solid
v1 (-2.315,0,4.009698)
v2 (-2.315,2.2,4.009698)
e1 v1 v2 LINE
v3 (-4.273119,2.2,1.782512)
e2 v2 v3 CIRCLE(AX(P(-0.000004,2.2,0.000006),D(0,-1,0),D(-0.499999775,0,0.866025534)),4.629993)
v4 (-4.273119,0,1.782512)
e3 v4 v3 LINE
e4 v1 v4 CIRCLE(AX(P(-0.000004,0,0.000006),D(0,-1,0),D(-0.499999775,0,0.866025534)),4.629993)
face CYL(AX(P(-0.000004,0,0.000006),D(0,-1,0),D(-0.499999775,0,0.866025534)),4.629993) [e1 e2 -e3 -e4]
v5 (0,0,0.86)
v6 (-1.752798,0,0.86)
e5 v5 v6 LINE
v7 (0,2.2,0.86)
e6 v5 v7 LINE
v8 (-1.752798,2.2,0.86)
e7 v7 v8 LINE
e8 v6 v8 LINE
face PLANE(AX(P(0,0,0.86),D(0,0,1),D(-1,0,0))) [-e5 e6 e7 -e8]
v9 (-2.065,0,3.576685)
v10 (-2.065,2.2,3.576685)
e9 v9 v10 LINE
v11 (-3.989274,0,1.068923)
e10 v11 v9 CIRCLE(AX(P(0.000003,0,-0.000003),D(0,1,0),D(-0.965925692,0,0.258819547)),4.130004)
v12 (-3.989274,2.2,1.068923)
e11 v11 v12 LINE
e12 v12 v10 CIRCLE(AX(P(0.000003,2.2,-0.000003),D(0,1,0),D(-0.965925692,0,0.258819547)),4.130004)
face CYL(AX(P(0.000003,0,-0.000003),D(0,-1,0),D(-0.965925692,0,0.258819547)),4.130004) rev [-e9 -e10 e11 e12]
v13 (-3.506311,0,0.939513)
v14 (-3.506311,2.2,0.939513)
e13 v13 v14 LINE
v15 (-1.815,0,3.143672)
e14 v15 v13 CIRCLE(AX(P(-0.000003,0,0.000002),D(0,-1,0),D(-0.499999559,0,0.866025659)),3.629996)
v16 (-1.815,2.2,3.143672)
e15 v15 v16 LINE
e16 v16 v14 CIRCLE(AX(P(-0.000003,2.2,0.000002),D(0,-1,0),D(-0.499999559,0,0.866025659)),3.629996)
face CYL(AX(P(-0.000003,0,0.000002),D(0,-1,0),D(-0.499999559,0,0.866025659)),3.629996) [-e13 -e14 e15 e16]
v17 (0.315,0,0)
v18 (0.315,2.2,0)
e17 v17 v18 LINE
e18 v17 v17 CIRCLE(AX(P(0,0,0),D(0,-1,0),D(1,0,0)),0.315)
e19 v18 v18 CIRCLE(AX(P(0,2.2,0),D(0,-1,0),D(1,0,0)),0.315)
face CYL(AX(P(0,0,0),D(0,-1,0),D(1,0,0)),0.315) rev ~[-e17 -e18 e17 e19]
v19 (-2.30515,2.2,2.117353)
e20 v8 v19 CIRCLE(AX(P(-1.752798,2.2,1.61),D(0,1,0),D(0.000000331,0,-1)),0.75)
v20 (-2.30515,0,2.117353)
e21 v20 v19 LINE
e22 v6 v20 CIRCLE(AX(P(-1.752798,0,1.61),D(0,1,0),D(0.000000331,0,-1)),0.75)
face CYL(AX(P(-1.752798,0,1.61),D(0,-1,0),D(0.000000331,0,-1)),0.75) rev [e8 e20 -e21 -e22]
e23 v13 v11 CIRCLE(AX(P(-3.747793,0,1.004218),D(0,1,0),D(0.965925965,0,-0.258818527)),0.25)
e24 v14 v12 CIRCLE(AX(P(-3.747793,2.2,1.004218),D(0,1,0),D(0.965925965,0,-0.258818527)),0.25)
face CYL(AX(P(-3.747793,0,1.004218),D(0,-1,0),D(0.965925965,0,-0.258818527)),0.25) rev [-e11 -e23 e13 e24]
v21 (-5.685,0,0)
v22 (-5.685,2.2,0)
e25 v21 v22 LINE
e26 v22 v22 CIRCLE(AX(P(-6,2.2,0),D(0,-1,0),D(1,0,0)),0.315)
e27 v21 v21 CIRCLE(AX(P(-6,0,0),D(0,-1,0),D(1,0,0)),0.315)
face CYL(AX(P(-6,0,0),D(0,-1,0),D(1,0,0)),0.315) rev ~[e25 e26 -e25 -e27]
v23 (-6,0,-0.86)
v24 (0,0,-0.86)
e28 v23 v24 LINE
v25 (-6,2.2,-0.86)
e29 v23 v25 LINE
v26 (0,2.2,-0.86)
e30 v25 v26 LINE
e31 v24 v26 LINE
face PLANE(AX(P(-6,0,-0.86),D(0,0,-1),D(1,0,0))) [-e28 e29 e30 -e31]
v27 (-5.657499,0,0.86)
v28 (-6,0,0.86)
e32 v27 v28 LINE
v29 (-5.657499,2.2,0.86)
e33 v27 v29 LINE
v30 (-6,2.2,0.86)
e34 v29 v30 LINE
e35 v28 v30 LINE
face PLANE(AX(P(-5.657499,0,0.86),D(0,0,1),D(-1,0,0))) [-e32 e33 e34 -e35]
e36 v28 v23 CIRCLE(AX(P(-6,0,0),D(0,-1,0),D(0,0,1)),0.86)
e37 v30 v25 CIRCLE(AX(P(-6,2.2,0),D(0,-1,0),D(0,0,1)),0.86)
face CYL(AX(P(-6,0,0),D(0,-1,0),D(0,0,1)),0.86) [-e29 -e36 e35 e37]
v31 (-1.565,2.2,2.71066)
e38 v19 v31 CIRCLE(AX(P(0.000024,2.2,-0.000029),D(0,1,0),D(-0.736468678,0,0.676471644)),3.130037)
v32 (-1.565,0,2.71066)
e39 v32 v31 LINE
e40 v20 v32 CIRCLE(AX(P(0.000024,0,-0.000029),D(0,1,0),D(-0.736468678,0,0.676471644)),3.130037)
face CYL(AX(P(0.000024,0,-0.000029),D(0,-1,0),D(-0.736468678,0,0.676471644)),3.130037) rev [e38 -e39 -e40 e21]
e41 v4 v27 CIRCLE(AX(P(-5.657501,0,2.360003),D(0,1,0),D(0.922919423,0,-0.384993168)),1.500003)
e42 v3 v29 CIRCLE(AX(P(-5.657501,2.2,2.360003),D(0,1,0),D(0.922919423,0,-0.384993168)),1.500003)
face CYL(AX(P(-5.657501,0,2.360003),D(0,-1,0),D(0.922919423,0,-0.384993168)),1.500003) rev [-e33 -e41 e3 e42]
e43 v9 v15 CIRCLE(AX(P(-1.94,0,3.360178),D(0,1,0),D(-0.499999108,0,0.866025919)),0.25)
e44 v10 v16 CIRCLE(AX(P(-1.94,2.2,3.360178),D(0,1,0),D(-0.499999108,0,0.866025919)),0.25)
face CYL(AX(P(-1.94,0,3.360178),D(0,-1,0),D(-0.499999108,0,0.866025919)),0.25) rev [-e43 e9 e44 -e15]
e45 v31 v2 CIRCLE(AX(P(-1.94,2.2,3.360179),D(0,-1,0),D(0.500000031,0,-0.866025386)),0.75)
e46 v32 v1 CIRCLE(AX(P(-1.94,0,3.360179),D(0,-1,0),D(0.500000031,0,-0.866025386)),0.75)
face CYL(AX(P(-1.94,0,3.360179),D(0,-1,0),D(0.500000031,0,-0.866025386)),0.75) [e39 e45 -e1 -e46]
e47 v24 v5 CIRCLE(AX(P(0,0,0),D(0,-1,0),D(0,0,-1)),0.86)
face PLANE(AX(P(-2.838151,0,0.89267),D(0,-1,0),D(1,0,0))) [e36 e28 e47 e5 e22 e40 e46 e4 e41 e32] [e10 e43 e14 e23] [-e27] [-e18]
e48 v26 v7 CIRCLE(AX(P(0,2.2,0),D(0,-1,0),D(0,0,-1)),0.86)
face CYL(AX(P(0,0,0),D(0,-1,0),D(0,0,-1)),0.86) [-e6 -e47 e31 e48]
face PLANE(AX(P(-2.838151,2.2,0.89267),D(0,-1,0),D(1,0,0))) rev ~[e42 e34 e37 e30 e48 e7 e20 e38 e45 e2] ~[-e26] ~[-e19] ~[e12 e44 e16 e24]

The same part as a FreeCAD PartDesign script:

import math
import FreeCAD as App
import Part
import Sketcher

V = App.Vector
Q = App.Units.Quantity

doc = App.newDocument("Part")
params = doc.addObject("Spreadsheet::Sheet", "Params")
for row, (alias, value) in enumerate([
    ("sketch1_diameter", "0.63 mm"),
    ("sketch1_width", "6 mm"),
    ("sketch1_radius", "0.86 mm"),
    ("sketch1_radius2", "0.75 mm"),
    ("sketch1_radius3", "0.25 mm"),
    ("pad1_length", "2.2 mm"),
], start=1):
    params.set(f"A{row}", alias)
    params.set(f"B{row}", "=" + value)
    params.setAlias(f"B{row}", alias)

body = doc.addObject("PartDesign::Body", "Body")

sketch1 = doc.addObject("Sketcher::SketchObject", "Sketch")
body.addObject(sketch1)
sketch1.AttachmentSupport = (doc.XZ_Plane, [""])
sketch1.MapMode = "FlatFace"
sketch1.addGeometry(Part.ArcOfCircle(Part.Circle(V(0, 0, 0), V(0, 0, 1), 0.86), math.radians(-90), math.radians(90)), False)
sketch1.addGeometry(Part.LineSegment(V(0, 0.86, 0), V(-1.75, 0.86, 0)), False)
sketch1.addGeometry(Part.ArcOfCircle(Part.Circle(V(-1.75, 1.61, 0), V(0, 0, 1), 0.75), math.radians(137), math.radians(270)), False)
sketch1.addGeometry(Part.ArcOfCircle(Part.Circle(V(0, 0, 0), V(0, 0, 1), 3.13), math.radians(120), math.radians(137.43)), False)
sketch1.addGeometry(Part.ArcOfCircle(Part.Circle(V(-1.94, 3.36, 0), V(0, 0, 1), 0.75), math.radians(-60), math.radians(120)), False)
sketch1.addGeometry(Part.ArcOfCircle(Part.Circle(V(0, 0, 0), V(0, 0, 1), 4.63), math.radians(120), math.radians(157)), False)
sketch1.addGeometry(Part.ArcOfCircle(Part.Circle(V(-5.66, 2.36, 0), V(0, 0, 1), 1.5), math.radians(-90), math.radians(-23)), False)
sketch1.addGeometry(Part.LineSegment(V(-5.66, 0.86, 0), V(-6, 0.86, 0)), False)
sketch1.addGeometry(Part.ArcOfCircle(Part.Circle(V(-6, 0, 0), V(0, 0, 1), 0.86), math.radians(90), math.radians(270)), False)
sketch1.addGeometry(Part.LineSegment(V(-6, -0.86, 0), V(0, -0.86, 0)), False)
sketch1.addGeometry(Part.Circle(V(-6, 0, 0), V(0, 0, 1), 0.32), False)
sketch1.addGeometry(Part.Circle(V(0, 0, 0), V(0, 0, 1), 0.32), False)
sketch1.addGeometry(Part.ArcOfCircle(Part.Circle(V(0, 0, 0), V(0, 0, 1), 4.13), math.radians(120), math.radians(165)), False)
sketch1.addGeometry(Part.ArcOfCircle(Part.Circle(V(-1.94, 3.36, 0), V(0, 0, 1), 0.25), math.radians(-60), math.radians(120)), False)
sketch1.addGeometry(Part.ArcOfCircle(Part.Circle(V(0, 0, 0), V(0, 0, 1), 3.63), math.radians(120), math.radians(165)), False)
sketch1.addGeometry(Part.ArcOfCircle(Part.Circle(V(-3.75, 1, 0), V(0, 0, 1), 0.25), math.radians(165), math.radians(345)), False)
sketch1.addConstraint(Sketcher.Constraint("Tangent", 0, 2, 1, 1))
sketch1.addConstraint(Sketcher.Constraint("Tangent", 1, 2, 2, 2))
sketch1.addConstraint(Sketcher.Constraint("Tangent", 2, 1, 3, 2))
sketch1.addConstraint(Sketcher.Constraint("Coincident", 3, 1, 4, 1))
sketch1.addConstraint(Sketcher.Constraint("Tangent", 4, 2, 5, 1))
sketch1.addConstraint(Sketcher.Constraint("Coincident", 5, 2, 6, 2))
sketch1.addConstraint(Sketcher.Constraint("Tangent", 6, 1, 7, 1))
sketch1.addConstraint(Sketcher.Constraint("Tangent", 7, 2, 8, 1))
sketch1.addConstraint(Sketcher.Constraint("Tangent", 8, 2, 9, 1))
sketch1.addConstraint(Sketcher.Constraint("Tangent", 9, 2, 0, 1))
sketch1.addConstraint(Sketcher.Constraint("Tangent", 12, 1, 13, 2))
sketch1.addConstraint(Sketcher.Constraint("Tangent", 13, 1, 14, 1))
sketch1.addConstraint(Sketcher.Constraint("Tangent", 14, 2, 15, 2))
sketch1.addConstraint(Sketcher.Constraint("Tangent", 15, 1, 12, 2))
sketch1.addConstraint(Sketcher.Constraint("Horizontal", 1))
sketch1.addConstraint(Sketcher.Constraint("Horizontal", 7))
sketch1.addConstraint(Sketcher.Constraint("Horizontal", 9))
sketch1.addConstraint(Sketcher.Constraint("Coincident", 0, 3, -1, 1))
sketch1.addConstraint(Sketcher.Constraint("Coincident", 5, 3, -1, 1))
sketch1.addConstraint(Sketcher.Constraint("Coincident", 11, 3, -1, 1))
sketch1.addConstraint(Sketcher.Constraint("Coincident", 12, 3, -1, 1))
sketch1.addConstraint(Sketcher.Constraint("Coincident", 14, 3, -1, 1))
sketch1.addConstraint(Sketcher.Constraint("Coincident", 10, 3, 8, 3))
sketch1.addConstraint(Sketcher.Constraint("Coincident", 13, 3, 4, 3))
sketch1.addConstraint(Sketcher.Constraint("Equal", 2, 4))
sketch1.addConstraint(Sketcher.Constraint("Equal", 0, 8))
sketch1.addConstraint(Sketcher.Constraint("Equal", 10, 11))
sketch1.addConstraint(Sketcher.Constraint("Diameter", 10, Q("0.63 mm")))
sketch1.addConstraint(Sketcher.Constraint("DistanceX", 9, 1, 9, 2, Q("6 mm")))
sketch1.addConstraint(Sketcher.Constraint("Radius", 0, Q("0.86 mm")))
sketch1.addConstraint(Sketcher.Constraint("Radius", 2, Q("0.75 mm")))
sketch1.addConstraint(Sketcher.Constraint("Radius", 13, Q("0.25 mm")))
sketch1.addConstraint(Sketcher.Constraint("DistanceX", 12, 1, 3, 1, Q("0.5 mm")))
sketch1.addConstraint(Sketcher.Constraint("DistanceX", 4, 2, 13, 1, Q("0.5 mm")))
sketch1.addConstraint(Sketcher.Constraint("DistanceX", 4, 3, -1, 1, Q("1.94 mm")))
sketch1.addConstraint(Sketcher.Constraint("DistanceX", 1, 2, 1, 1, Q("1.752798 mm")))
sketch1.addConstraint(Sketcher.Constraint("DistanceX", 7, 2, 7, 1, Q("0.342501 mm")))
sketch1.addConstraint(Sketcher.Constraint("Radius", 3, Q("3.130037 mm")))
sketch1.addConstraint(Sketcher.Constraint("DistanceY", 14, 2, 5, 2, Q("0.842999 mm")))
sketch1.addConstraint(Sketcher.Constraint("DistanceX", 5, 2, -1, 1, Q("4.273119 mm")))
sketch1.setExpression("Constraints[27]", "Params.sketch1_diameter")
sketch1.setExpression("Constraints[28]", "Params.sketch1_width")
sketch1.setExpression("Constraints[29]", "Params.sketch1_radius")
sketch1.setExpression("Constraints[30]", "Params.sketch1_radius2")
sketch1.setExpression("Constraints[31]", "Params.sketch1_radius3")
pad1 = doc.addObject("PartDesign::Pad", "Pad")
body.addObject(pad1)
pad1.Profile = sketch1
pad1.setExpression("Length", "Params.pad1_length")
pad1.Reversed = True

doc.recompute()
